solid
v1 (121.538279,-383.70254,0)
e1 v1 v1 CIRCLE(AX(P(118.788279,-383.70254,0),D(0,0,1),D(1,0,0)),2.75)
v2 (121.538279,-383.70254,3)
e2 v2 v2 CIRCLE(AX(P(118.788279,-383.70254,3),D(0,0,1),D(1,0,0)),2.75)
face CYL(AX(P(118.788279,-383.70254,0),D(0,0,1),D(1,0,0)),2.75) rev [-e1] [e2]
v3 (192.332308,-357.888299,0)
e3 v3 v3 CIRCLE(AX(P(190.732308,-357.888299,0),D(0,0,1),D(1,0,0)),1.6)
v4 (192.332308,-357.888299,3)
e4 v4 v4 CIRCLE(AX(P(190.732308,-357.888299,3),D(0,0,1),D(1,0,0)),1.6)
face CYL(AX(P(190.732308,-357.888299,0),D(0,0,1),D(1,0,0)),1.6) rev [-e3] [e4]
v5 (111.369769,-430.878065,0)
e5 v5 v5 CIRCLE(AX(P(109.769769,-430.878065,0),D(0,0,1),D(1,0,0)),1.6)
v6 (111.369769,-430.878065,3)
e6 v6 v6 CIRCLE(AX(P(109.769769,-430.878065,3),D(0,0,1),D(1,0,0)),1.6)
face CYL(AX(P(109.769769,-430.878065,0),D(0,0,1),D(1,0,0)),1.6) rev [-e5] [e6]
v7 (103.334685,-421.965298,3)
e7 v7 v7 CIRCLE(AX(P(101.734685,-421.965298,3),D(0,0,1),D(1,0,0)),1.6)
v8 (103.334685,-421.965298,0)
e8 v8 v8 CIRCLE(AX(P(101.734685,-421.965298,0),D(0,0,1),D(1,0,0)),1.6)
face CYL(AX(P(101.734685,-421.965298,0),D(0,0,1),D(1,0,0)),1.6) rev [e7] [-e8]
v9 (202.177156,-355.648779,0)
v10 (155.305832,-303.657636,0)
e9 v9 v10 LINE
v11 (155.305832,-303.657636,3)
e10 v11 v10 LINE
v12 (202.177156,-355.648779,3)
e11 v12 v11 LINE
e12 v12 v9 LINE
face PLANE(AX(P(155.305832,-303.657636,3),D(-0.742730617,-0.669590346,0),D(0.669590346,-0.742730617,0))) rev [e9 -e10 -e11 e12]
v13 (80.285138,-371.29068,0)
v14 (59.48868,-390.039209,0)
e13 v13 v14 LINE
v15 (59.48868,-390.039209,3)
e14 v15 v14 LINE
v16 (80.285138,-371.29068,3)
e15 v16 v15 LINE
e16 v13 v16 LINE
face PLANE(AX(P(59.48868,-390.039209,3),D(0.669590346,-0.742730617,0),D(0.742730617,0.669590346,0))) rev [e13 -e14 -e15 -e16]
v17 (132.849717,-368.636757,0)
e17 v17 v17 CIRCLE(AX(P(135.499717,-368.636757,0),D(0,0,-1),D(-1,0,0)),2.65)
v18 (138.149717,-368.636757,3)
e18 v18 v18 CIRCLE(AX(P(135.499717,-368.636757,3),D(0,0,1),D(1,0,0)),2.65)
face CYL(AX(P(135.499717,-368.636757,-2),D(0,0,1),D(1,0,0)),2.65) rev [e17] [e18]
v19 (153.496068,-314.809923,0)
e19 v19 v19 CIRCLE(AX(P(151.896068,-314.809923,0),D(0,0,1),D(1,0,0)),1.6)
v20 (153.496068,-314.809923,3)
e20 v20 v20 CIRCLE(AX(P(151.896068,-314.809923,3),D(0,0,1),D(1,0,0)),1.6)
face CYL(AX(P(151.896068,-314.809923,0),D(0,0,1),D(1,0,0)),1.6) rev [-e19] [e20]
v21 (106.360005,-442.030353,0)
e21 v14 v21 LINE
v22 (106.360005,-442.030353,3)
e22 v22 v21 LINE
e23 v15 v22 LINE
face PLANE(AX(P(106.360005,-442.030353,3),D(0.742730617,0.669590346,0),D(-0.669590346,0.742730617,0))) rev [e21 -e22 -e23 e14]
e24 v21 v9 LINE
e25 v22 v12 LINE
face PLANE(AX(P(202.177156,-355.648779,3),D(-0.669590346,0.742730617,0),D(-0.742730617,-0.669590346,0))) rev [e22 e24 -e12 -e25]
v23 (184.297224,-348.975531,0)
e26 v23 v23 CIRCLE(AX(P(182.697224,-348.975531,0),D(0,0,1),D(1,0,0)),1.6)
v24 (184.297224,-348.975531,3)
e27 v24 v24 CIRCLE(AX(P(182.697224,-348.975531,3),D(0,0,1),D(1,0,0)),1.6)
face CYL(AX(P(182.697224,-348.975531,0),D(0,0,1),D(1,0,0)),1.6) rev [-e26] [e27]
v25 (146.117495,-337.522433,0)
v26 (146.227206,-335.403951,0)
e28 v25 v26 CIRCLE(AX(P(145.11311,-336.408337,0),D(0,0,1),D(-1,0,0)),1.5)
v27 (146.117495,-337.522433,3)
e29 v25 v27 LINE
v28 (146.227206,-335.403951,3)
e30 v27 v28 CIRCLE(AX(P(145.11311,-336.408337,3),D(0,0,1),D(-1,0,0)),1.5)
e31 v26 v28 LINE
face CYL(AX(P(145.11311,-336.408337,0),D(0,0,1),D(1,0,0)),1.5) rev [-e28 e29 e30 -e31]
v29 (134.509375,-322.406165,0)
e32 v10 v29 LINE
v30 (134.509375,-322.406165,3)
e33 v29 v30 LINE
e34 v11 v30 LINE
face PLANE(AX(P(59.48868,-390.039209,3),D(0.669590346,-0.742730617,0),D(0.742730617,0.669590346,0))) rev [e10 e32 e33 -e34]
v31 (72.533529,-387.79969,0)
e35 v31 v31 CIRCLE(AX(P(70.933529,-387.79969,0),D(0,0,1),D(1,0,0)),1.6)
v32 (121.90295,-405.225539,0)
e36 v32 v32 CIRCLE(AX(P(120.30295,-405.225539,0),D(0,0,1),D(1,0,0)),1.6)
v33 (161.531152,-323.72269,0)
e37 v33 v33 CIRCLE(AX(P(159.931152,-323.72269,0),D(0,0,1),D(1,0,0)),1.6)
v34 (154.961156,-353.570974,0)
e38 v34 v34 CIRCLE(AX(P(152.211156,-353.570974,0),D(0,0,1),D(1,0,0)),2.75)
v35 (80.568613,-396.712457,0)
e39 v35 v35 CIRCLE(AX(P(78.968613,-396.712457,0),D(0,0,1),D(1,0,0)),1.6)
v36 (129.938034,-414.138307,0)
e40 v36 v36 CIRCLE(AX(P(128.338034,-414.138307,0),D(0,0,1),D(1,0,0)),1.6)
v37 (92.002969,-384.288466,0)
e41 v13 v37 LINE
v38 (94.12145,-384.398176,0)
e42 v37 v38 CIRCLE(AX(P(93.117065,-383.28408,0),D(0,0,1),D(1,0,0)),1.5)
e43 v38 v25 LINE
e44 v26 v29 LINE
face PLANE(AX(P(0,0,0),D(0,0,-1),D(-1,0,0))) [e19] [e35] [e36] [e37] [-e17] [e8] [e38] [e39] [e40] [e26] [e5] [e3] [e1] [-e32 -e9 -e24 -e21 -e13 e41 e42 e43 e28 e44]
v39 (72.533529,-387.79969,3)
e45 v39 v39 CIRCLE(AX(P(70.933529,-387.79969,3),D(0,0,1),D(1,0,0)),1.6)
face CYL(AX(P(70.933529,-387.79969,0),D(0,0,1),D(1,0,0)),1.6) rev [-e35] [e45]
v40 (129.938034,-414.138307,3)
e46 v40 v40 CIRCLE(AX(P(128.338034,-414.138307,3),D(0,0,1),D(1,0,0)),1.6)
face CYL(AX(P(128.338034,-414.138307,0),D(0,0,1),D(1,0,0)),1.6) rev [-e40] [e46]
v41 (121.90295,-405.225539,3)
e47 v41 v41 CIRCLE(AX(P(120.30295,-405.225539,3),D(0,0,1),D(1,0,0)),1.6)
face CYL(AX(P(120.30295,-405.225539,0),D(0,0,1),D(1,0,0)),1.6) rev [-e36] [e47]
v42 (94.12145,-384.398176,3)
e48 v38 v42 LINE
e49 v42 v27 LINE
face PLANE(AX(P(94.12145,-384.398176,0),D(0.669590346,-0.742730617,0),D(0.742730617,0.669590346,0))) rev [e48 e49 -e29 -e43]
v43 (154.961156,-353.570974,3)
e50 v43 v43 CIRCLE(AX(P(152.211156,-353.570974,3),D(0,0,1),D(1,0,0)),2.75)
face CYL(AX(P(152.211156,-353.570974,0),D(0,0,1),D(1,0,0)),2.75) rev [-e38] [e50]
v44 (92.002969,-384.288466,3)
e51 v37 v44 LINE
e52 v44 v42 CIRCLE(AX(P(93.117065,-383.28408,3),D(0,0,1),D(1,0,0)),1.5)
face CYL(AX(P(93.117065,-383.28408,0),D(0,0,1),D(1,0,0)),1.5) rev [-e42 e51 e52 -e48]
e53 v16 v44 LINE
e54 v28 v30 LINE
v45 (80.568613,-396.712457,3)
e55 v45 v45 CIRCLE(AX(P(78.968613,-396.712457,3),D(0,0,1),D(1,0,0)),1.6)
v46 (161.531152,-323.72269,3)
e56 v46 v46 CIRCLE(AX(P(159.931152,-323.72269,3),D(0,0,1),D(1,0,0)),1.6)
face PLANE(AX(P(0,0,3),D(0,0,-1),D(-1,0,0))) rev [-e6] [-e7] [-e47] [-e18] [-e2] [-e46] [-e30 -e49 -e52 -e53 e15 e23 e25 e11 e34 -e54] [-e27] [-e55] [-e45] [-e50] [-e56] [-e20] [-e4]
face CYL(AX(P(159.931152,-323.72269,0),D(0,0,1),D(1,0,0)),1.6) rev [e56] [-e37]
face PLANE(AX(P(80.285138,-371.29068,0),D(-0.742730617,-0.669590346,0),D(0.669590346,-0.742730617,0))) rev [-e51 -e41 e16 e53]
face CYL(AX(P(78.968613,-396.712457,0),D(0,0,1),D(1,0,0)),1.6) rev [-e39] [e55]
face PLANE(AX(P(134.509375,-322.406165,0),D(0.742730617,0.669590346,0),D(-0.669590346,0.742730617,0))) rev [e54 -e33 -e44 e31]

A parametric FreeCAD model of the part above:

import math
import FreeCAD as App
import Part
import Sketcher

V = App.Vector
Q = App.Units.Quantity

doc = App.newDocument("Part")
body = doc.addObject("PartDesign::Body", "Body")

# Sketch on XY plane
sketch1 = doc.addObject("Sketcher::SketchObject", "Sketch")
body.addObject(sketch1)
sketch1.AttachmentSupport = (doc.XY_Plane, [""])
sketch1.MapMode = "FlatFace"
sketch1.addGeometry([
    Part.LineSegment(V(202, -356, 0), V(155, -304, 0)),
    Part.LineSegment(V(155, -304, 0), V(59, -390, 0)),
    Part.LineSegment(V(59, -390, 0), V(106, -442, 0)),
    Part.LineSegment(V(106, -442, 0), V(202, -356, 0)),
], False)
sketch1.addConstraint([
    Sketcher.Constraint("Coincident", 0, 2, 1, 1),
    Sketcher.Constraint("Coincident", 1, 2, 2, 1),
    Sketcher.Constraint("Coincident", 2, 2, 3, 1),
    Sketcher.Constraint("Coincident", 3, 2, 0, 1),
    Sketcher.Constraint("Perpendicular", 0, 1),
    Sketcher.Constraint("Perpendicular", 1, 2),
    Sketcher.Constraint("Perpendicular", 2, 3),
    Sketcher.Constraint("Distance", 0, Q("70 mm")),
    Sketcher.Constraint("Distance", 1, Q("129.0066 mm")),
    Sketcher.Constraint("DistanceX", -1, 1, 0, 2, Q("155.305832 mm")),
    Sketcher.Constraint("DistanceX", -1, 1, 1, 2, Q("59.48868 mm")),
    Sketcher.Constraint("DistanceY", 1, 2, -1, 1, Q("390.03921 mm")),
])
pad1 = doc.addObject("PartDesign::Pad", "Pad")
body.addObject(pad1)
pad1.Profile = sketch1
pad1.Length = 3

# Sketch on XY plane
sketch2 = doc.addObject("Sketcher::SketchObject", "Sketch001")
body.addObject(sketch2)
sketch2.AttachmentSupport = (doc.XY_Plane, [""])
sketch2.MapMode = "FlatFace"
sketch2.AttachmentOffset = App.Placement(V(0, 0, 3), App.Rotation())
sketch2.addGeometry(Part.Circle(V(135.5, -368.6, 0), V(0, 0, 1), 2.6), False)
sketch2.addConstraint([
    Sketcher.Constraint("Diameter", 0, Q("5.3 mm")),
    Sketcher.Constraint("DistanceX", -1, 1, 0, 3, Q("135.499717 mm")),
    Sketcher.Constraint("DistanceY", 0, 3, -1, 1, Q("368.636757 mm")),
])
pocket1 = doc.addObject("PartDesign::Pocket", "Pocket")
body.addObject(pocket1)
pocket1.Profile = sketch2
pocket1.Length = 5

# Sketch on XY plane
sketch3 = doc.addObject("Sketcher::SketchObject", "Sketch002")
body.addObject(sketch3)
sketch3.AttachmentSupport = (doc.XY_Plane, [""])
sketch3.MapMode = "FlatFace"
sketch3.AttachmentOffset = App.Placement(V(0, 0, 3), App.Rotation())
sketch3.addGeometry([
    Part.Circle(V(151.9, -314.8, 0), V(0, 0, 1), 1.6),  # 0
    Part.Circle(V(159.9, -323.7, 0), V(0, 0, 1), 1.6),  # 1
    Part.Circle(V(182.7, -349, 0), V(0, 0, 1), 1.6),  # 2
    Part.Circle(V(190.7, -357.9, 0), V(0, 0, 1), 1.6),  # 3
    Part.Circle(V(70.9, -387.8, 0), V(0, 0, 1), 1.6),  # 4
    Part.Circle(V(79, -396.7, 0), V(0, 0, 1), 1.6),  # 5
    Part.Circle(V(120.3, -405.2, 0), V(0, 0, 1), 1.6),  # 6
    Part.Circle(V(128.3, -414.1, 0), V(0, 0, 1), 1.6),  # 7
    Part.Circle(V(101.7, -422, 0), V(0, 0, 1), 1.6),  # 8
    Part.Circle(V(109.8, -430.9, 0), V(0, 0, 1), 1.6),  # 9
    Part.LineSegment(V(134.5, -322.4, 0), V(80.3, -371.3, 0)),  # 10
    Part.LineSegment(V(80.3, -371.3, 0), V(92, -384.3, 0)),  # 11
    Part.ArcOfCircle(Part.Circle(V(93.1, -383.3, 0), V(0, 0, 1), 1.5), math.radians(-138), math.radians(-48)),  # 12
    Part.LineSegment(V(94.1, -384.4, 0), V(146.1, -337.5, 0)),  # 13
    Part.ArcOfCircle(Part.Circle(V(145.1, -336.4, 0), V(0, 0, 1), 1.5), math.radians(-48), math.radians(42)),  # 14
    Part.LineSegment(V(146.2, -335.4, 0), V(134.5, -322.4, 0)),  # 15
    Part.Circle(V(152.2, -353.6, 0), V(0, 0, 1), 2.8),  # 16
    Part.ArcOfCircle(Part.Circle(V(118.8, -383.7, 0), V(0, 0, 1), 2.8), math.radians(42), math.radians(222)),  # 17
    Part.ArcOfCircle(Part.Circle(V(118.8, -383.7, 0), V(0, 0, 1), 2.8), math.radians(-138), math.radians(42)),  # 18
], False)
sketch3.addConstraint([
    Sketcher.Constraint("Coincident", 10, 2, 11, 1),
    Sketcher.Constraint("Tangent", 11, 2, 12, 1),
    Sketcher.Constraint("Tangent", 12, 2, 13, 1),
    Sketcher.Constraint("Tangent", 13, 2, 14, 1),
    Sketcher.Constraint("Tangent", 14, 2, 15, 1),
    Sketcher.Constraint("Coincident", 15, 2, 10, 1),
    Sketcher.Constraint("Tangent", 17, 1, 18, 2),
    Sketcher.Constraint("Coincident", 18, 1, 17, 2),
    Sketcher.Constraint("Equal", 0, 1),
    Sketcher.Constraint("Equal", 1, 2),
    Sketcher.Constraint("Equal", 2, 3),
    Sketcher.Constraint("Equal", 3, 4),
    Sketcher.Constraint("Equal", 4, 5),
    Sketcher.Constraint("Equal", 5, 6),
    Sketcher.Constraint("Equal", 6, 7),
    Sketcher.Constraint("Equal", 7, 8),
    Sketcher.Constraint("Equal", 8, 9),
    Sketcher.Constraint("Equal", 12, 14),
    Sketcher.Constraint("Equal", 16, 17),
    Sketcher.Constraint("Perpendicular", 10, 11),
    Sketcher.Constraint("Perpendicular", 11, 13),
    Sketcher.Constraint("Perpendicular", 13, 15),
    Sketcher.Constraint("Diameter", 0, Q("3.2 mm")),
    Sketcher.Constraint("Diameter", 16, Q("5.5 mm")),
    Sketcher.Constraint("Radius", 12, Q("1.5 mm")),
    Sketcher.Constraint("Distance", 11, Q("17.5 mm")),
    Sketcher.Constraint("DistanceY", 4, 3, 1, 3, Q("64.076999 mm")),
    Sketcher.Constraint("DistanceY", 6, 3, 17, 3, Q("21.522999 mm")),
    Sketcher.Constraint("Distance", 10, Q("73.0066 mm")),
    Sketcher.Constraint("DistanceY", 3, 3, -1, 1, Q("357.888299 mm")),
    Sketcher.Constraint("DistanceY", 8, 3, -1, 1, Q("421.965298 mm")),
    Sketcher.Constraint("DistanceX", 6, 3, 1, 3, Q("39.628202 mm")),
    Sketcher.Constraint("DistanceX", 14, 3, 3, 3, Q("45.619198 mm")),
    Sketcher.Constraint("DistanceY", 12, 3, 10, 2, Q("11.9934 mm")),
    Sketcher.Constraint("DistanceY", 2, 3, 13, 2, Q("11.453099 mm")),
    Sketcher.Constraint("DistanceX", -1, 1, 1, 3, Q("159.931152 mm")),
    Sketcher.Constraint("DistanceY", 1, 3, -1, 1, Q("323.72269 mm")),
    Sketcher.Constraint("DistanceY", 2, 3, -1, 1, Q("348.975531 mm")),
    Sketcher.Constraint("DistanceX", -1, 1, 4, 3, Q("70.933529 mm")),
    Sketcher.Constraint("DistanceY", 6, 3, -1, 1, Q("405.225539 mm")),
    Sketcher.Constraint("DistanceX", -1, 1, 9, 3, Q("109.769769 mm")),
    Sketcher.Constraint("DistanceX", -1, 1, 14, 3, Q("145.11311 mm")),
    Sketcher.Constraint("DistanceX", -1, 1, 17, 3, Q("118.788279 mm")),
    Sketcher.Constraint("DistanceX", -1, 1, 18, 1, Q("116.745769 mm")),
    Sketcher.Constraint("DistanceX", 1, 3, 2, 3, Q("22.766072 mm")),
    Sketcher.Constraint("DistanceY", 2, 3, 0, 3, Q("34.165608 mm")),
    Sketcher.Constraint("DistanceX", 0, 3, 3, 3, Q("38.83624 mm")),
    Sketcher.Constraint("DistanceX", 5, 3, 1, 3, Q("80.962539 mm")),
    Sketcher.Constraint("DistanceY", 5, 3, 3, 3, Q("38.824159 mm")),
    Sketcher.Constraint("DistanceX", 5, 3, 7, 3, Q("49.369421 mm")),
    Sketcher.Constraint("DistanceY", 7, 3, 5, 3, Q("17.42585 mm")),
    Sketcher.Constraint("DistanceX", 8, 3, 7, 3, Q("26.60335 mm")),
    Sketcher.Constraint("DistanceY", 9, 3, 7, 3, Q("16.739759 mm")),
    Sketcher.Constraint("DistanceX", 16, 3, 3, 3, Q("38.521151 mm")),
    Sketcher.Constraint("DistanceY", 16, 3, 0, 3, Q("38.761052 mm")),
    Sketcher.Constraint("DistanceX", 17, 3, 17, 1, Q("2.042509 mm")),
])
pocket2 = doc.addObject("PartDesign::Pocket", "Pocket001")
body.addObject(pocket2)
pocket2.Profile = sketch3
pocket2.Length = 3

doc.recompute()
